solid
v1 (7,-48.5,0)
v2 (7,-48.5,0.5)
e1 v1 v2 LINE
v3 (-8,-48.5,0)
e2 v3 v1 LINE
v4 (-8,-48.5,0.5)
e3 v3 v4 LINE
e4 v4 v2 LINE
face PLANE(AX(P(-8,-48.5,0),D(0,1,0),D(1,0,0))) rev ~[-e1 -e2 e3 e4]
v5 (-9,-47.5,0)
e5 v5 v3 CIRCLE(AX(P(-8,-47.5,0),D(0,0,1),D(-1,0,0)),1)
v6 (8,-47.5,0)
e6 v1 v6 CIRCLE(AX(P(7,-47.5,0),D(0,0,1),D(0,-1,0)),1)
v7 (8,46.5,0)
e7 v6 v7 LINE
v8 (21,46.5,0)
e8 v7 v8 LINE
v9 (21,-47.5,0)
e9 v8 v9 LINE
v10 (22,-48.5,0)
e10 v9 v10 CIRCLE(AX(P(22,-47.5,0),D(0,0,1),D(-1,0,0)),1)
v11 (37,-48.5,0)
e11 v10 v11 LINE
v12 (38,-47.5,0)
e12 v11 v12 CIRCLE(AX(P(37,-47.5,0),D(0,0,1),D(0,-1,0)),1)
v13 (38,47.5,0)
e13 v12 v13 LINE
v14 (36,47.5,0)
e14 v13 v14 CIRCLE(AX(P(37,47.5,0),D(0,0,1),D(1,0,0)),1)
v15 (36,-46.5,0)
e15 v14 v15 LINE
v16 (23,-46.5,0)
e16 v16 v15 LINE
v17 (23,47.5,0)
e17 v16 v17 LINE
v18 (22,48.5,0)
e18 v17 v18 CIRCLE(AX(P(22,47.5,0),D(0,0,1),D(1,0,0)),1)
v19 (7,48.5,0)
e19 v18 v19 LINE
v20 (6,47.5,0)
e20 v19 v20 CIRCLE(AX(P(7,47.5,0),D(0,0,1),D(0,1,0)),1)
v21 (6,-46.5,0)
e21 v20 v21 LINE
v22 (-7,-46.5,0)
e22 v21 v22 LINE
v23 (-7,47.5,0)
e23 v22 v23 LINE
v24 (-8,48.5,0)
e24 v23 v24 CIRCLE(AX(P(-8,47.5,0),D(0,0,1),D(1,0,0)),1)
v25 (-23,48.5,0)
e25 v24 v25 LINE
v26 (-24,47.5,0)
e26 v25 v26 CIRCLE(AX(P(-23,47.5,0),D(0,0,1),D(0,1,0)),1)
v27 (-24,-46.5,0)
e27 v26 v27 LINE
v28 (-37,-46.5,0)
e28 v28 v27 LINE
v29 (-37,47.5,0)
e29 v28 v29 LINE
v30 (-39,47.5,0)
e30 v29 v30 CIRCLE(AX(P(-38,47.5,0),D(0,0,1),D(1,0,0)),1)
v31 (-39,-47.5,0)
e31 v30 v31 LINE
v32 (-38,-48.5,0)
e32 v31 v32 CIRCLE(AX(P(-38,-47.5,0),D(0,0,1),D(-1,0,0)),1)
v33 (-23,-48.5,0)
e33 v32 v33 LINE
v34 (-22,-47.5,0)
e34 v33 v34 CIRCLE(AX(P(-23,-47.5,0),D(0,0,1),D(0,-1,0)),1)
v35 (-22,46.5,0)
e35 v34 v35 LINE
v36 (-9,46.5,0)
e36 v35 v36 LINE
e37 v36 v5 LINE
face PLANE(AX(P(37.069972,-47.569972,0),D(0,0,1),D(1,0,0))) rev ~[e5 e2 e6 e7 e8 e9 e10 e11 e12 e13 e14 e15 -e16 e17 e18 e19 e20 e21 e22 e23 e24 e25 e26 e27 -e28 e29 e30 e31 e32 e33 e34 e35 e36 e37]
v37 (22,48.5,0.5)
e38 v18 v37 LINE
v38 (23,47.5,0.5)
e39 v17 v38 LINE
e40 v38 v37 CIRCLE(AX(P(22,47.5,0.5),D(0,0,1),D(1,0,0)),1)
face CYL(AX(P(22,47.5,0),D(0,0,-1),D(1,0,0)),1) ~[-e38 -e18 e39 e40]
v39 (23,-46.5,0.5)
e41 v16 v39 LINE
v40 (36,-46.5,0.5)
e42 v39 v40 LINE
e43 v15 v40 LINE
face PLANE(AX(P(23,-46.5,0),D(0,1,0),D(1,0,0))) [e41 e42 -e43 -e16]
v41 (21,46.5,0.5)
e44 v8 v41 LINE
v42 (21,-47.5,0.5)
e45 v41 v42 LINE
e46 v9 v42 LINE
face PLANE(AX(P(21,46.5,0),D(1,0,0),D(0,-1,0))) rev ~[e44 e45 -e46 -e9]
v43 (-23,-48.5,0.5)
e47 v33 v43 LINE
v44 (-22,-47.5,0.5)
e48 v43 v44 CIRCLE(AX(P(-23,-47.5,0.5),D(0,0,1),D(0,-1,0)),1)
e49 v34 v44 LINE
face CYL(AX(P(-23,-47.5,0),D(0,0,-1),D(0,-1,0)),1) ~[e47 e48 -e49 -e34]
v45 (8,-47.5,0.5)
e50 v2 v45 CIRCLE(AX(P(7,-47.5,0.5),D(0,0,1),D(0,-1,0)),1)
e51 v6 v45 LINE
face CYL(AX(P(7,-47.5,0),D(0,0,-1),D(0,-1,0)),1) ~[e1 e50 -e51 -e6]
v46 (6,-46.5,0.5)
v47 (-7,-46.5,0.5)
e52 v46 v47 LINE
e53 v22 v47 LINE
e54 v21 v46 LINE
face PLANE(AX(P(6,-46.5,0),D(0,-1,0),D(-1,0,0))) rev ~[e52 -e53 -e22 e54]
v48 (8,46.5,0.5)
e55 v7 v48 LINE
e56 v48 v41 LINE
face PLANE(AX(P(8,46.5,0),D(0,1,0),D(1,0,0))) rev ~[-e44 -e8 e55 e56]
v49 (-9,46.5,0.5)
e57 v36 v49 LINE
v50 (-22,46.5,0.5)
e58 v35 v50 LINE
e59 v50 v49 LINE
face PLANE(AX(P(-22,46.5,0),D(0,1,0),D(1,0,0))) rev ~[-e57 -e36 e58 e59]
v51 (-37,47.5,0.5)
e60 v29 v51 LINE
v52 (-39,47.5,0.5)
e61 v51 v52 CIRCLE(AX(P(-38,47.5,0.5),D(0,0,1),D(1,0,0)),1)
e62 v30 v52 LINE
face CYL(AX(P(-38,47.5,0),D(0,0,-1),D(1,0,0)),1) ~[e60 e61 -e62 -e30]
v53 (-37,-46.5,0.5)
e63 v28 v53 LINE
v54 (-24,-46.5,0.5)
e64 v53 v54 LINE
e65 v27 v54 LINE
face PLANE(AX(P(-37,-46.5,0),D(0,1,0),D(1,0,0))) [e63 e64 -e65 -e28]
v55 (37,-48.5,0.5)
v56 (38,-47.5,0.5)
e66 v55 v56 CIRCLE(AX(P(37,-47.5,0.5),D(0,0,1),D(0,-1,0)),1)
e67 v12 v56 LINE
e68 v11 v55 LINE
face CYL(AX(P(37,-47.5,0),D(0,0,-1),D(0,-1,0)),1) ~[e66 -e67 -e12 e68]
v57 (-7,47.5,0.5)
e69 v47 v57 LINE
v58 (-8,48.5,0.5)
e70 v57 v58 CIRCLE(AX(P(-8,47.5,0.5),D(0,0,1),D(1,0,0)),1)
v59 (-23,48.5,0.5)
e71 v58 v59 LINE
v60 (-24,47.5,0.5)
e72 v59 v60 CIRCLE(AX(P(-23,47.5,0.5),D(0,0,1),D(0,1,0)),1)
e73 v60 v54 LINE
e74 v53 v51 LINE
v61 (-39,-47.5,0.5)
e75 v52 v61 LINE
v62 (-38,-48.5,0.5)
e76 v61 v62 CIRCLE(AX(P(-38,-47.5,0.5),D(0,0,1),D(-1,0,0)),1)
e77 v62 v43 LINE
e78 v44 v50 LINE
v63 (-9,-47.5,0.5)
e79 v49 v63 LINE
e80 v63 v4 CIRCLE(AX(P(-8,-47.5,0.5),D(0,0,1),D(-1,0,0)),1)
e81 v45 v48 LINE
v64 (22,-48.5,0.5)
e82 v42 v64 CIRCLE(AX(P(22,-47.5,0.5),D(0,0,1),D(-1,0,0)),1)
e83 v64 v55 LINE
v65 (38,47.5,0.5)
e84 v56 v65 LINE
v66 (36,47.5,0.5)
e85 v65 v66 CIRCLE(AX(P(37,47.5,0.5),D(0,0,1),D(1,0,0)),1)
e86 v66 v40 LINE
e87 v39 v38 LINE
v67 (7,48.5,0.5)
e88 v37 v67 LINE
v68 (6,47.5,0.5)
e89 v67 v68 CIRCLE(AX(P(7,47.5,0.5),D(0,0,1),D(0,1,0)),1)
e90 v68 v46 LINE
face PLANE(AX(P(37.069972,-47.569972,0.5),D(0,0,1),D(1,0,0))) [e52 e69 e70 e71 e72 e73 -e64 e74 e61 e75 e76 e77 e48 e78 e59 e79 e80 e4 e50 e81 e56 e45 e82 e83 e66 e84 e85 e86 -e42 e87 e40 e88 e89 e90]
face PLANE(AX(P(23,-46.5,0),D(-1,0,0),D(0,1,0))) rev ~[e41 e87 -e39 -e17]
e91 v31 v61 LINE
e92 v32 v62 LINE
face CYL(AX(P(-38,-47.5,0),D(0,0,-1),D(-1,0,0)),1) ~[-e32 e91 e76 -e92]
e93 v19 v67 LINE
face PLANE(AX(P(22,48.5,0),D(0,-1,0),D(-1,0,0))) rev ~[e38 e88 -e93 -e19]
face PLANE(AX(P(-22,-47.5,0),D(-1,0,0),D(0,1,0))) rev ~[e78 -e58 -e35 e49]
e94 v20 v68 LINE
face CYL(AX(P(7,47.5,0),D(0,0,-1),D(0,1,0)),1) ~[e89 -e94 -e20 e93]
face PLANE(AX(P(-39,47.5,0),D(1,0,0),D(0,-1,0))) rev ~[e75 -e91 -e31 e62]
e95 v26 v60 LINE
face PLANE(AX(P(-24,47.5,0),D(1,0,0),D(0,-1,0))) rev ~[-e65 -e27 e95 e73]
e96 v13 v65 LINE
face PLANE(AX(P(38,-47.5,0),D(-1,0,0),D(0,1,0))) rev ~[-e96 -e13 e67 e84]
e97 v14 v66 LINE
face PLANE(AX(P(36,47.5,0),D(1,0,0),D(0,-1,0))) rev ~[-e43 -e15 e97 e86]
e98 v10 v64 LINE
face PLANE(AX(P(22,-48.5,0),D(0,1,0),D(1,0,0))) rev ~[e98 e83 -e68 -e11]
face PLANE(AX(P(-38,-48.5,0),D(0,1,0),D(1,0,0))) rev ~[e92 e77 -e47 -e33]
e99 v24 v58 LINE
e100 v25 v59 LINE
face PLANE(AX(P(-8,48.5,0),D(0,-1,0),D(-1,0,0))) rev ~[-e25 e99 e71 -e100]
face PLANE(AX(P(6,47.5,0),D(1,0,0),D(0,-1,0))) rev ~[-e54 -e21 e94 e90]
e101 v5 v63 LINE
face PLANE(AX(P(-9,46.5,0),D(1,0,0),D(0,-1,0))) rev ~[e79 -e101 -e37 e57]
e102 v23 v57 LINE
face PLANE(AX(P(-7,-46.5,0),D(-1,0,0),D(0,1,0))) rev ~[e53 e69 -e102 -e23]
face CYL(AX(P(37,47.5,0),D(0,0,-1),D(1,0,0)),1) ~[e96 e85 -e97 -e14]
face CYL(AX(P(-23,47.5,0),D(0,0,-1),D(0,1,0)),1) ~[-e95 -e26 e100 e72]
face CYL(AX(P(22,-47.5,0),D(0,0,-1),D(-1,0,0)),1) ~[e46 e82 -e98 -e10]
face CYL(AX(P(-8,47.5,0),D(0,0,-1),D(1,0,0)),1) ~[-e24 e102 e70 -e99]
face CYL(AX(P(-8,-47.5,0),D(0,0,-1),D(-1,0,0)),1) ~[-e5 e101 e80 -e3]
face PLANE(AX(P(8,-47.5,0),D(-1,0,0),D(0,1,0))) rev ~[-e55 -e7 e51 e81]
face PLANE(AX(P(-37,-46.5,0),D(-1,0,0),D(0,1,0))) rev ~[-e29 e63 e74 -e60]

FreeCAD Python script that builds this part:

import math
import FreeCAD as App
import Part
import Sketcher

V = App.Vector
Q = App.Units.Quantity

doc = App.newDocument("Part")
body = doc.addObject("PartDesign::Body", "Body")

sketch1 = body.newObject("Sketcher::SketchObject", "Sketch")
sketch1.AttachmentSupport = (doc.getObject("XY_Plane"), [""])
sketch1.MapMode = "FlatFace"
sketch1.addGeometry(Part.ArcOfCircle(Part.Circle(V(37, -47.5, 0), V(0, 0, 1), 1), math.radians(-90), math.radians(0)), False)
sketch1.addGeometry(Part.LineSegment(V(38, -47.5, 0), V(38, 47.5, 0)), False)
sketch1.addGeometry(Part.ArcOfCircle(Part.Circle(V(37, 47.5, 0), V(0, 0, 1), 1), math.radians(0), math.radians(180)), False)
sketch1.addGeometry(Part.LineSegment(V(36, 47.5, 0), V(36, -46.5, 0)), False)
sketch1.addGeometry(Part.LineSegment(V(36, -46.5, 0), V(23, -46.5, 0)), False)
sketch1.addGeometry(Part.LineSegment(V(23, -46.5, 0), V(23, 47.5, 0)), False)
sketch1.addGeometry(Part.ArcOfCircle(Part.Circle(V(22, 47.5, 0), V(0, 0, 1), 1), math.radians(0), math.radians(90)), False)
sketch1.addGeometry(Part.LineSegment(V(22, 48.5, 0), V(7, 48.5, 0)), False)
sketch1.addGeometry(Part.ArcOfCircle(Part.Circle(V(7, 47.5, 0), V(0, 0, 1), 1), math.radians(90), math.radians(180)), False)
sketch1.addGeometry(Part.LineSegment(V(6, 47.5, 0), V(6, -46.5, 0)), False)
sketch1.addGeometry(Part.LineSegment(V(6, -46.5, 0), V(-7, -46.5, 0)), False)
sketch1.addGeometry(Part.LineSegment(V(-7, -46.5, 0), V(-7, 47.5, 0)), False)
sketch1.addGeometry(Part.ArcOfCircle(Part.Circle(V(-8, 47.5, 0), V(0, 0, 1), 1), math.radians(0), math.radians(90)), False)
sketch1.addGeometry(Part.LineSegment(V(-8, 48.5, 0), V(-23, 48.5, 0)), False)
sketch1.addGeometry(Part.ArcOfCircle(Part.Circle(V(-23, 47.5, 0), V(0, 0, 1), 1), math.radians(90), math.radians(180)), False)
sketch1.addGeometry(Part.LineSegment(V(-24, 47.5, 0), V(-24, -46.5, 0)), False)
sketch1.addGeometry(Part.LineSegment(V(-24, -46.5, 0), V(-37, -46.5, 0)), False)
sketch1.addGeometry(Part.LineSegment(V(-37, -46.5, 0), V(-37, 47.5, 0)), False)
sketch1.addGeometry(Part.ArcOfCircle(Part.Circle(V(-38, 47.5, 0), V(0, 0, 1), 1), math.radians(0), math.radians(180)), False)
sketch1.addGeometry(Part.LineSegment(V(-39, 47.5, 0), V(-39, -47.5, 0)), False)
sketch1.addGeometry(Part.ArcOfCircle(Part.Circle(V(-38, -47.5, 0), V(0, 0, 1), 1), math.radians(180), math.radians(270)), False)
sketch1.addGeometry(Part.LineSegment(V(-38, -48.5, 0), V(-23, -48.5, 0)), False)
sketch1.addGeometry(Part.ArcOfCircle(Part.Circle(V(-23, -47.5, 0), V(0, 0, 1), 1), math.radians(-90), math.radians(0)), False)
sketch1.addGeometry(Part.LineSegment(V(-22, -47.5, 0), V(-22, 46.5, 0)), False)
sketch1.addGeometry(Part.LineSegment(V(-22, 46.5, 0), V(-9, 46.5, 0)), False)
sketch1.addGeometry(Part.LineSegment(V(-9, 46.5, 0), V(-9, -47.5, 0)), False)
sketch1.addGeometry(Part.ArcOfCircle(Part.Circle(V(-8, -47.5, 0), V(0, 0, 1), 1), math.radians(180), math.radians(270)), False)
sketch1.addGeometry(Part.LineSegment(V(-8, -48.5, 0), V(7, -48.5, 0)), False)
sketch1.addGeometry(Part.ArcOfCircle(Part.Circle(V(7, -47.5, 0), V(0, 0, 1), 1), math.radians(-90), math.radians(0)), False)
sketch1.addGeometry(Part.LineSegment(V(8, -47.5, 0), V(8, 46.5, 0)), False)
sketch1.addGeometry(Part.LineSegment(V(8, 46.5, 0), V(21, 46.5, 0)), False)
sketch1.addGeometry(Part.LineSegment(V(21, 46.5, 0), V(21, -47.5, 0)), False)
sketch1.addGeometry(Part.ArcOfCircle(Part.Circle(V(22, -47.5, 0), V(0, 0, 1), 1), math.radians(180), math.radians(270)), False)
sketch1.addGeometry(Part.LineSegment(V(22, -48.5, 0), V(37, -48.5, 0)), False)
sketch1.addConstraint(Sketcher.Constraint("Tangent", 0, 2, 1, 1))
sketch1.addConstraint(Sketcher.Constraint("Tangent", 1, 2, 2, 1))
sketch1.addConstraint(Sketcher.Constraint("Tangent", 2, 2, 3, 1))
sketch1.addConstraint(Sketcher.Constraint("Coincident", 3, 2, 4, 1))
sketch1.addConstraint(Sketcher.Constraint("Coincident", 4, 2, 5, 1))
sketch1.addConstraint(Sketcher.Constraint("Tangent", 5, 2, 6, 1))
sketch1.addConstraint(Sketcher.Constraint("Tangent", 6, 2, 7, 1))
sketch1.addConstraint(Sketcher.Constraint("Tangent", 7, 2, 8, 1))
sketch1.addConstraint(Sketcher.Constraint("Tangent", 8, 2, 9, 1))
sketch1.addConstraint(Sketcher.Constraint("Coincident", 9, 2, 10, 1))
sketch1.addConstraint(Sketcher.Constraint("Coincident", 10, 2, 11, 1))
sketch1.addConstraint(Sketcher.Constraint("Tangent", 11, 2, 12, 1))
sketch1.addConstraint(Sketcher.Constraint("Tangent", 12, 2, 13, 1))
sketch1.addConstraint(Sketcher.Constraint("Tangent", 13, 2, 14, 1))
sketch1.addConstraint(Sketcher.Constraint("Tangent", 14, 2, 15, 1))
sketch1.addConstraint(Sketcher.Constraint("Coincident", 15, 2, 16, 1))
sketch1.addConstraint(Sketcher.Constraint("Coincident", 16, 2, 17, 1))
sketch1.addConstraint(Sketcher.Constraint("Tangent", 17, 2, 18, 1))
sketch1.addConstraint(Sketcher.Constraint("Tangent", 18, 2, 19, 1))
sketch1.addConstraint(Sketcher.Constraint("Tangent", 19, 2, 20, 1))
sketch1.addConstraint(Sketcher.Constraint("Tangent", 20, 2, 21, 1))
sketch1.addConstraint(Sketcher.Constraint("Tangent", 21, 2, 22, 1))
sketch1.addConstraint(Sketcher.Constraint("Tangent", 22, 2, 23, 1))
sketch1.addConstraint(Sketcher.Constraint("Coincident", 23, 2, 24, 1))
sketch1.addConstraint(Sketcher.Constraint("Coincident", 24, 2, 25, 1))
sketch1.addConstraint(Sketcher.Constraint("Tangent", 25, 2, 26, 1))
sketch1.addConstraint(Sketcher.Constraint("Tangent", 26, 2, 27, 1))
sketch1.addConstraint(Sketcher.Constraint("Tangent", 27, 2, 28, 1))
sketch1.addConstraint(Sketcher.Constraint("Tangent", 28, 2, 29, 1))
sketch1.addConstraint(Sketcher.Constraint("Coincident", 29, 2, 30, 1))
sketch1.addConstraint(Sketcher.Constraint("Coincident", 30, 2, 31, 1))
sketch1.addConstraint(Sketcher.Constraint("Tangent", 31, 2, 32, 1))
sketch1.addConstraint(Sketcher.Constraint("Tangent", 32, 2, 33, 1))
sketch1.addConstraint(Sketcher.Constraint("Tangent", 33, 2, 0, 1))
sketch1.addConstraint(Sketcher.Constraint("Vertical", 1))
sketch1.addConstraint(Sketcher.Constraint("Vertical", 3))
sketch1.addConstraint(Sketcher.Constraint("Horizontal", 4))
sketch1.addConstraint(Sketcher.Constraint("Vertical", 5))
sketch1.addConstraint(Sketcher.Constraint("Horizontal", 7))
sketch1.addConstraint(Sketcher.Constraint("Vertical", 9))
sketch1.addConstraint(Sketcher.Constraint("Horizontal", 10))
sketch1.addConstraint(Sketcher.Constraint("Vertical", 11))
sketch1.addConstraint(Sketcher.Constraint("Horizontal", 13))
sketch1.addConstraint(Sketcher.Constraint("Vertical", 15))
sketch1.addConstraint(Sketcher.Constraint("Horizontal", 16))
sketch1.addConstraint(Sketcher.Constraint("Vertical", 17))
sketch1.addConstraint(Sketcher.Constraint("Vertical", 19))
sketch1.addConstraint(Sketcher.Constraint("Horizontal", 21))
sketch1.addConstraint(Sketcher.Constraint("Vertical", 23))
sketch1.addConstraint(Sketcher.Constraint("Horizontal", 24))
sketch1.addConstraint(Sketcher.Constraint("Vertical", 25))
sketch1.addConstraint(Sketcher.Constraint("Horizontal", 27))
sketch1.addConstraint(Sketcher.Constraint("Vertical", 29))
sketch1.addConstraint(Sketcher.Constraint("Horizontal", 30))
sketch1.addConstraint(Sketcher.Constraint("Vertical", 31))
sketch1.addConstraint(Sketcher.Constraint("Horizontal", 33))
sketch1.addConstraint(Sketcher.Constraint("Equal", 0, 2))
sketch1.addConstraint(Sketcher.Constraint("Equal", 2, 6))
sketch1.addConstraint(Sketcher.Constraint("Equal", 6, 8))
sketch1.addConstraint(Sketcher.Constraint("Equal", 8, 12))
sketch1.addConstraint(Sketcher.Constraint("Equal", 12, 14))
sketch1.addConstraint(Sketcher.Constraint("Equal", 14, 18))
sketch1.addConstraint(Sketcher.Constraint("Equal", 18, 20))
sketch1.addConstraint(Sketcher.Constraint("Equal", 20, 22))
sketch1.addConstraint(Sketcher.Constraint("Equal", 22, 26))
sketch1.addConstraint(Sketcher.Constraint("Equal", 26, 28))
sketch1.addConstraint(Sketcher.Constraint("Equal", 28, 32))
sketch1.addConstraint(Sketcher.Constraint("Symmetric", 14, 3, 22, 3, -1))
sketch1.addConstraint(Sketcher.Constraint("Symmetric", 12, 3, 26, 3, -1))
sketch1.addConstraint(Sketcher.Constraint("Symmetric", 8, 3, 28, 3, -1))
sketch1.addConstraint(Sketcher.Constraint("Symmetric", 6, 3, 32, 3, -1))
sketch1.addConstraint(Sketcher.Constraint("Horizontal", 2, 3, 6, 3))
sketch1.addConstraint(Sketcher.Constraint("Horizontal", 14, 3, 18, 3))
sketch1.addConstraint(Sketcher.Constraint("Horizontal", 4, 2, 9, 2))
sketch1.addConstraint(Sketcher.Constraint("Horizontal", 10, 2, 15, 2))
sketch1.addConstraint(Sketcher.Constraint("Horizontal", 24, 2, 29, 2))
sketch1.addConstraint(Sketcher.Constraint("Equal", 4, 10))
sketch1.addConstraint(Sketcher.Constraint("Equal", 7, 13))
sketch1.addConstraint(Sketcher.Constraint("Equal", 10, 16))
sketch1.addConstraint(Sketcher.Constraint("Equal", 13, 21))
sketch1.addConstraint(Sketcher.Constraint("Equal", 17, 23))
sketch1.addConstraint(Sketcher.Constraint("Radius", 0, Q("1 mm")))
sketch1.addConstraint(Sketcher.Constraint("DistanceX", 4, 2, 4, 1, Q("13 mm")))
sketch1.addConstraint(Sketcher.Constraint("DistanceY", 1, 1, 1, 2, Q("95 mm")))
sketch1.addConstraint(Sketcher.Constraint("DistanceY", 3, 2, 3, 1, Q("94 mm")))
sketch1.addConstraint(Sketcher.Constraint("DistanceX", -1, 1, 0, 3, Q("37 mm")))
pad1 = body.newObject("PartDesign::Pad", "Pad")
pad1.Profile = sketch1
pad1.Length = 0.5

doc.recompute()
